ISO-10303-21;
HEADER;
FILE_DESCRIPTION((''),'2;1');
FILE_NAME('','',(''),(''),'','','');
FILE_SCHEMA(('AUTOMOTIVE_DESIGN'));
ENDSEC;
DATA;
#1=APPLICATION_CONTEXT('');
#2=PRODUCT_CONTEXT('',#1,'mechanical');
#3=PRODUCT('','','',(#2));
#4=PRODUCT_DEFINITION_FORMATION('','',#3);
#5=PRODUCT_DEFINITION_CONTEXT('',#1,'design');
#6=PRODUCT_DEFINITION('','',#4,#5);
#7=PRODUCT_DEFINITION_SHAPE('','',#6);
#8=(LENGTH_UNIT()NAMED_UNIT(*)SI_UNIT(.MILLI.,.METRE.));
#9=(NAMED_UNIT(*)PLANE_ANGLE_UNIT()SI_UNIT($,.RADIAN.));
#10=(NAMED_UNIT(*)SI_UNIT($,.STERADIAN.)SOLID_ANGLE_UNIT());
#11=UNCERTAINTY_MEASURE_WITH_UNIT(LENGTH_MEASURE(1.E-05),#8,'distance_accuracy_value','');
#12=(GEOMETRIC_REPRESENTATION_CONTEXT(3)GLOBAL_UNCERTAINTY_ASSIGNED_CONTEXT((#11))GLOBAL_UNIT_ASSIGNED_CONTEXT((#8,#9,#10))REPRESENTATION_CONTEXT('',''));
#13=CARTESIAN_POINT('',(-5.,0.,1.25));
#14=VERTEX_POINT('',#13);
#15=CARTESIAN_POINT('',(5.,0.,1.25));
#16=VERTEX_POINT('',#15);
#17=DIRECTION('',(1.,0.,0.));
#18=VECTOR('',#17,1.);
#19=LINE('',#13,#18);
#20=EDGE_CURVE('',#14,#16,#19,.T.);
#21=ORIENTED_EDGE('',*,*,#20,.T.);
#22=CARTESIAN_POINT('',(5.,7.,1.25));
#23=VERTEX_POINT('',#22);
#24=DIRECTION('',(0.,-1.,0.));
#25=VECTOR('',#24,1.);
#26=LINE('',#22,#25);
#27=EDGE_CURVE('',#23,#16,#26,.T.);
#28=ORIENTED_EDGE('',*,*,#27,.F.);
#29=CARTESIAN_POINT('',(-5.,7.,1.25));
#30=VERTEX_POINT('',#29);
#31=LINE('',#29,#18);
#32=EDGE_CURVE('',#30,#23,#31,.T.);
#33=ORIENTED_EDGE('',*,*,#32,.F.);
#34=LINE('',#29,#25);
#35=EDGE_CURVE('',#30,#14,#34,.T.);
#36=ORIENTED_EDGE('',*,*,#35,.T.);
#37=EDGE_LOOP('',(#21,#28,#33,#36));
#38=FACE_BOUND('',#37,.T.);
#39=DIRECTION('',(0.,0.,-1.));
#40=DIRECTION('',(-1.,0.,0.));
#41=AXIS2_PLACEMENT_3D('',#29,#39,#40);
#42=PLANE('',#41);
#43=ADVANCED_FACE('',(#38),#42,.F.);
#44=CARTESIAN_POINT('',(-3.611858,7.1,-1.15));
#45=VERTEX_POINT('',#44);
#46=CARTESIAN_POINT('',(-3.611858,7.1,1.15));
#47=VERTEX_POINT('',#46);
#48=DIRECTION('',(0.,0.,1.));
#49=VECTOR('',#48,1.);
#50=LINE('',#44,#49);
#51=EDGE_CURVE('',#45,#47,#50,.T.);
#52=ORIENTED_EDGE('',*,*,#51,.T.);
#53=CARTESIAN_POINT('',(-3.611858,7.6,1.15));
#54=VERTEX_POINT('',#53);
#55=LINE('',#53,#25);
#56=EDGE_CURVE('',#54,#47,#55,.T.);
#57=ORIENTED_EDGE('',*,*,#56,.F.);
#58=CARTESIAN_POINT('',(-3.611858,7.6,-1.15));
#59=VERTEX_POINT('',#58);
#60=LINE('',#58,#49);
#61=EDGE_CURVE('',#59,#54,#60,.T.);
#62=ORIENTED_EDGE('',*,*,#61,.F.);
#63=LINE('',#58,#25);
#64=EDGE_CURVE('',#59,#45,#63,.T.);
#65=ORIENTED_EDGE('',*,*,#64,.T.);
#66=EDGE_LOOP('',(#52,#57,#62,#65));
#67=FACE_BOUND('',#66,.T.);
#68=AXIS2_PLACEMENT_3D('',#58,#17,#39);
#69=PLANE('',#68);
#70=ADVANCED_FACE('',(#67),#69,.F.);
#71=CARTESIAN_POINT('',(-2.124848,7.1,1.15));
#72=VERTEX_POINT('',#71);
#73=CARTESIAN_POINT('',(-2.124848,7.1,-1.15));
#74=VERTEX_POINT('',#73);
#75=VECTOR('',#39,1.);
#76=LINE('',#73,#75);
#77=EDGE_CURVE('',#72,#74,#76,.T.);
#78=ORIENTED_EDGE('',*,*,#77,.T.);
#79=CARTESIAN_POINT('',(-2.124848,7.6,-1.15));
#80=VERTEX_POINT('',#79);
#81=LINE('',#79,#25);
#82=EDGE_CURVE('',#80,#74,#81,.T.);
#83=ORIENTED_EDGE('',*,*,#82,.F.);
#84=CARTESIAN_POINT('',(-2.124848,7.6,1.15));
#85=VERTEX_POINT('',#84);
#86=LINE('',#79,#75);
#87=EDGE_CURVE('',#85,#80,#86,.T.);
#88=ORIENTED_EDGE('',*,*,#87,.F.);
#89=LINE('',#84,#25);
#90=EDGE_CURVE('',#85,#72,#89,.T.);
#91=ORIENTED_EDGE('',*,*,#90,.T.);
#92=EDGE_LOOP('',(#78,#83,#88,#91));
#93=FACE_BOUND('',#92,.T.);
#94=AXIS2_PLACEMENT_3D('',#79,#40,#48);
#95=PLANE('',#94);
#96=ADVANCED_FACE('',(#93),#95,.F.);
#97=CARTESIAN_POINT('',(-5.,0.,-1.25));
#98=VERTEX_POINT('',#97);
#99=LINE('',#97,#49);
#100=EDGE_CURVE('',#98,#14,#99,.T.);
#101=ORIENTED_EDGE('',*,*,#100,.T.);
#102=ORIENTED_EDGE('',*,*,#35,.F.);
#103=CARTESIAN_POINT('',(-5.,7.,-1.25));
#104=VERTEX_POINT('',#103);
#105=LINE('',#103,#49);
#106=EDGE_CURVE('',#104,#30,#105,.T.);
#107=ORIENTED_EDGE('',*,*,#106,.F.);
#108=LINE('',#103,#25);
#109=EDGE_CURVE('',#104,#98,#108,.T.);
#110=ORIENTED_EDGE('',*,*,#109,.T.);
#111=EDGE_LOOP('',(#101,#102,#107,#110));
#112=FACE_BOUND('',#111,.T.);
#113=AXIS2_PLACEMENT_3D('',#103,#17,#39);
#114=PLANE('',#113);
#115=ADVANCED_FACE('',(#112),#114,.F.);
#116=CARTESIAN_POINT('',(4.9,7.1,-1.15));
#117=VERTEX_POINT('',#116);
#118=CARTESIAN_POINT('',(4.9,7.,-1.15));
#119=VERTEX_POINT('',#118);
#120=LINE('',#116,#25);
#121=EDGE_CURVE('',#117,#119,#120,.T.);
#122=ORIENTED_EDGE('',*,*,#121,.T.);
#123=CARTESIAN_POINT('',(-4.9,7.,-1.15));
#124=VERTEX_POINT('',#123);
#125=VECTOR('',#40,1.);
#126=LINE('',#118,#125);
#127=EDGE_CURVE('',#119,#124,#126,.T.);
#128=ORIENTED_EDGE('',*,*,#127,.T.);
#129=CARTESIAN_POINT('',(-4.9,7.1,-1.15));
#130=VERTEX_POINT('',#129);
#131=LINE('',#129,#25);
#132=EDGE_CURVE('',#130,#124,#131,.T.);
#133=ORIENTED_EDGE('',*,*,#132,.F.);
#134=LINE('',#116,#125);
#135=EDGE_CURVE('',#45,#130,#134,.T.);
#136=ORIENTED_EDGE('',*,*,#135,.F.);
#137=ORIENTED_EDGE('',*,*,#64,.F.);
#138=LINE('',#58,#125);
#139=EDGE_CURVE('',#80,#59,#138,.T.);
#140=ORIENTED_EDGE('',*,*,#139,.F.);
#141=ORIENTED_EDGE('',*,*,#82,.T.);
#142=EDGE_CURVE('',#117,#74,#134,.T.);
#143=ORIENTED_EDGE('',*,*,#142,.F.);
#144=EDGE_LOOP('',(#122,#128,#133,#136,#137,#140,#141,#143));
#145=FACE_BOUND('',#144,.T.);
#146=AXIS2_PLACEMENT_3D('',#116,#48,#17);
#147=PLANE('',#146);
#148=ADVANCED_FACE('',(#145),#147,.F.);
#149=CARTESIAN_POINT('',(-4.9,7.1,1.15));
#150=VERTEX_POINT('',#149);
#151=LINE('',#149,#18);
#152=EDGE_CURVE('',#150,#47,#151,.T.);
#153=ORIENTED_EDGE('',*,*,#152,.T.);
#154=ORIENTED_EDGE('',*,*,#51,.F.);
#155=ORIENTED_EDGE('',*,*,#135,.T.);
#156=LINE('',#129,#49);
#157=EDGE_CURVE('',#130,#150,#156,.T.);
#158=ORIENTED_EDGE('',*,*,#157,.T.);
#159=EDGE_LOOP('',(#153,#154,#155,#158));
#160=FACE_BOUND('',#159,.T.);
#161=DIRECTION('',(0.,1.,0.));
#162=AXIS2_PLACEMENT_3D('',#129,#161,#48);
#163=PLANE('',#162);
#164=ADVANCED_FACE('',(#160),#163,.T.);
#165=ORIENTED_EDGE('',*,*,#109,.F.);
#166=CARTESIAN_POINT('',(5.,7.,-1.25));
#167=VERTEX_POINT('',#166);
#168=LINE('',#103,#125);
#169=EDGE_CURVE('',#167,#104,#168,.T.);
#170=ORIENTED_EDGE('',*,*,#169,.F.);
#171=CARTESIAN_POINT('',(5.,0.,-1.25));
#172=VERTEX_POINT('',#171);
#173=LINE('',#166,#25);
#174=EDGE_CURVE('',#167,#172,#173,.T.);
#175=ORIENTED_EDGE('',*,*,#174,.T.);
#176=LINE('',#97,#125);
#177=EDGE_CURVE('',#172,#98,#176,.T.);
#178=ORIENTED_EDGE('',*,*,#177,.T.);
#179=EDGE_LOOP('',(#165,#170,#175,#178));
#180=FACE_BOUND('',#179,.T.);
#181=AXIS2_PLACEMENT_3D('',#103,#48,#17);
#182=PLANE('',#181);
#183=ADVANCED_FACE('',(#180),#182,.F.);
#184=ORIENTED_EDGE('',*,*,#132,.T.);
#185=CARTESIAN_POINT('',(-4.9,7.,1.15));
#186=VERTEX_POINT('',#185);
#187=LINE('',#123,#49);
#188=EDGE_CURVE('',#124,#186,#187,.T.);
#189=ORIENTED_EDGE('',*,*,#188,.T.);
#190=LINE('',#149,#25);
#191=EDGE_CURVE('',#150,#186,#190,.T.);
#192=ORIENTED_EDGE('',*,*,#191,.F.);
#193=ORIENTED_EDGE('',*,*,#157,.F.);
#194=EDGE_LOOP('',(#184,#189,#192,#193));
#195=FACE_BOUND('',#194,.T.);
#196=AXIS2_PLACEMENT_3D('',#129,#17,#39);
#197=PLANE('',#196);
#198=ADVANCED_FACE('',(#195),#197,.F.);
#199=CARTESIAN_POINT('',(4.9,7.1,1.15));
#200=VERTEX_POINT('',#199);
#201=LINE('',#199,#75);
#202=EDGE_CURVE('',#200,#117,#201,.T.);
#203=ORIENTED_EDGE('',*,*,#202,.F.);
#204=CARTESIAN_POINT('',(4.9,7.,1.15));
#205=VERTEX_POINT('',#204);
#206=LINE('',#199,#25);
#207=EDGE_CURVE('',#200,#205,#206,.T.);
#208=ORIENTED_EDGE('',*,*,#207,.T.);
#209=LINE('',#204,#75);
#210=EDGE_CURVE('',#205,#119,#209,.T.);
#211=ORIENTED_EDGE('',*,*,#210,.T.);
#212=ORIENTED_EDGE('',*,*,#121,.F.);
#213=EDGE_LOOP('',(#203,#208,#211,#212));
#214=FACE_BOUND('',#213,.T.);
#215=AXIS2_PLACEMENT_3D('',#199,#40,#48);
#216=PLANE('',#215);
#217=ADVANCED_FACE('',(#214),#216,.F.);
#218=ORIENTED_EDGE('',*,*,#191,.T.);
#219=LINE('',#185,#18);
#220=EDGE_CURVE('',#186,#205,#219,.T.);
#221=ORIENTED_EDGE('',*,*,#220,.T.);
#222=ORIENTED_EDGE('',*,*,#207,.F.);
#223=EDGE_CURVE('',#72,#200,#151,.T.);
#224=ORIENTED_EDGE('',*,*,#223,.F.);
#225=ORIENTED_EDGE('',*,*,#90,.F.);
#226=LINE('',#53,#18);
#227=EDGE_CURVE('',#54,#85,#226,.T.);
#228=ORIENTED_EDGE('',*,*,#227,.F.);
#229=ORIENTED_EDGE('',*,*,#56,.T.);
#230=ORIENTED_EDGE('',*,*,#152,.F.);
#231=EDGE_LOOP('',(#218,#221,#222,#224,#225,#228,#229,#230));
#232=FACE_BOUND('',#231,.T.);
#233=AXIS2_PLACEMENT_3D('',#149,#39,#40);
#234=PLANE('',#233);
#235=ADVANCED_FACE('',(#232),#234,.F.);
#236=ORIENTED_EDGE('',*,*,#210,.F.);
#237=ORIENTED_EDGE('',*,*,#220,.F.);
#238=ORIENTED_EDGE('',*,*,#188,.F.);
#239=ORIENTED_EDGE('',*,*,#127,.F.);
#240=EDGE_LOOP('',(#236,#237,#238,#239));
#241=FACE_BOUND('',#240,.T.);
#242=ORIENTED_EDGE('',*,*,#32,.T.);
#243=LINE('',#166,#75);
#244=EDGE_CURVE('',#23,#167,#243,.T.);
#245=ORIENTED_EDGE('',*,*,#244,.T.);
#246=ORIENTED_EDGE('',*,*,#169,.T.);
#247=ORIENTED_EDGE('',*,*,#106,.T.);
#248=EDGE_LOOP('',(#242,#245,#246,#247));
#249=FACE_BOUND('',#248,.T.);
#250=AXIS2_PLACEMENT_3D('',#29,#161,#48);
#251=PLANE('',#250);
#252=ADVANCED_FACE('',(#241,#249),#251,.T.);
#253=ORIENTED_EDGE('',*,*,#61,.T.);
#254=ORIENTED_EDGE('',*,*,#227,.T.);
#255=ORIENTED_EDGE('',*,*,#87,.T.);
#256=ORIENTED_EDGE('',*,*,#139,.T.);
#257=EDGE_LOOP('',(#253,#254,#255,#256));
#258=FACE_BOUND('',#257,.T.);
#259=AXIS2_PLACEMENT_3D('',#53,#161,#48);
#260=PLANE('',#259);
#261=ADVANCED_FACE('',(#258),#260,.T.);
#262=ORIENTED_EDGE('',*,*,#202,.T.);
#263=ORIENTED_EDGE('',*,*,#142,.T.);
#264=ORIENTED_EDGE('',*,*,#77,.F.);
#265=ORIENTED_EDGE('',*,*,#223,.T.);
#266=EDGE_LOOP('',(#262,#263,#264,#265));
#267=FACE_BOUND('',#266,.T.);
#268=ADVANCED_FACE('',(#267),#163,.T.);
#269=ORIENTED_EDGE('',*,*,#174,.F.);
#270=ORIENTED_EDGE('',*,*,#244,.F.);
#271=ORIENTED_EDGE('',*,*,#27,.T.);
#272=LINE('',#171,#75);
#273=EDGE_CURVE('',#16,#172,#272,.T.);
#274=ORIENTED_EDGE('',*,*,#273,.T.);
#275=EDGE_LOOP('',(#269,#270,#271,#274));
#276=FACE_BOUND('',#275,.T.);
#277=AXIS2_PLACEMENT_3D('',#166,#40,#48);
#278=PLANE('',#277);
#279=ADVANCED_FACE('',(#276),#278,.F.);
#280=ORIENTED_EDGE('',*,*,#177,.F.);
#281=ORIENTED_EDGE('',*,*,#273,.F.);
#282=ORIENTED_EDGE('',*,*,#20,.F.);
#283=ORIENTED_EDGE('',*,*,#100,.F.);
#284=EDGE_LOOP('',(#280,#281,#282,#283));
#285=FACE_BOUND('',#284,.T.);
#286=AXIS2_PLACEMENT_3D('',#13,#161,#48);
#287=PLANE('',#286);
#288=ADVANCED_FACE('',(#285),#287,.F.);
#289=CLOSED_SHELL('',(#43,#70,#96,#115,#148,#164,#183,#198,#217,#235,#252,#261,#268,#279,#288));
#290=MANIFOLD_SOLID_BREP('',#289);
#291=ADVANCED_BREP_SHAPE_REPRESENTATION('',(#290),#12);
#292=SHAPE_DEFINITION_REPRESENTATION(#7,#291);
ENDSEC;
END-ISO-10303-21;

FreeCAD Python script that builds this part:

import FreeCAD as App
import Part
import Sketcher
from FreeCAD import Vector
Q = App.Units.Quantity


def add_polygon(sketch, points):
    """Adds a closed chain of lines whose ends are joined by coincident constraints."""
    first, n = sketch.GeometryCount, len(points)
    for a, b in zip(points, points[1:] + points[:1]):
        sketch.addGeometry(Part.LineSegment(App.Vector(*a, 0), App.Vector(*b, 0)), False)
    for i in range(n):
        sketch.addConstraint(Sketcher.Constraint("Coincident", first + i, 2, first + (i + 1) % n, 1))

doc = App.newDocument("Part")
body = doc.addObject("PartDesign::Body", "Body")

# Sketch on XZ plane
sketch1 = body.newObject("Sketcher::SketchObject", "Sketch")
sketch1.AttachmentSupport = (doc.getObject("XZ_Plane"), [""])
sketch1.MapMode = "FlatFace"
add_polygon(sketch1, [(-5, -1.2), (-5, 1.2), (5, 1.2), (5, -1.2)])  # lines 0-3
sketch1.addConstraint([
    Sketcher.Constraint("Vertical", 0),
    Sketcher.Constraint("Horizontal", 1),
    Sketcher.Constraint("Vertical", 2),
    Sketcher.Constraint("Horizontal", 3),
    Sketcher.Constraint("Symmetric", 0, 2, 2, 2, -1, 1),
    Sketcher.Constraint("DistanceX", 1, 1, 1, 2, Q("10 mm")),
    Sketcher.Constraint("DistanceY", 0, 1, 0, 2, Q("2.5 mm")),
])
pad1 = body.newObject("PartDesign::Pad", "Pad")
pad1.Profile = sketch1
pad1.Length = 7
pad1.Reversed = True

# Sketch on XZ plane
sketch2 = body.newObject("Sketcher::SketchObject", "Sketch001")
sketch2.AttachmentSupport = (doc.getObject("XZ_Plane"), [""])
sketch2.MapMode = "FlatFace"
sketch2.AttachmentOffset = App.Placement(Vector(0, 0, -7), App.Rotation())
add_polygon(sketch2, [(-4.9, -1.1), (-4.9, 1.1), (4.9, 1.1), (4.9, -1.1)])  # lines 0-3
sketch2.addConstraint([
    Sketcher.Constraint("Vertical", 0),
    Sketcher.Constraint("Horizontal", 1),
    Sketcher.Constraint("Vertical", 2),
    Sketcher.Constraint("Horizontal", 3),
    Sketcher.Constraint("Symmetric", 0, 2, 2, 2, -1, 1),
    Sketcher.Constraint("DistanceX", 1, 1, 1, 2, Q("9.8 mm")),
    Sketcher.Constraint("DistanceY", 0, 1, 0, 2, Q("2.3 mm")),
])
pad2 = body.newObject("PartDesign::Pad", "Pad001")
pad2.Profile = sketch2
pad2.Length = 0.1
pad2.Reversed = True

# Sketch on XZ plane
sketch3 = body.newObject("Sketcher::SketchObject", "Sketch002")
sketch3.AttachmentSupport = (doc.getObject("XZ_Plane"), [""])
sketch3.MapMode = "FlatFace"
sketch3.AttachmentOffset = App.Placement(Vector(0, 0, -7.1), App.Rotation())
add_polygon(sketch3, [(-3.6, -1.1), (-3.6, 1.1), (-2.1, 1.1), (-2.1, -1.1)])  # lines 0-3
sketch3.addConstraint([
    Sketcher.Constraint("Vertical", 0),
    Sketcher.Constraint("Horizontal", 1),
    Sketcher.Constraint("Vertical", 2),
    Sketcher.Constraint("Horizontal", 3),
    Sketcher.Constraint("DistanceY", 0, 1, 0, 2, Q("2.3 mm")),
    Sketcher.Constraint("DistanceY", -1, 1, 0, 2, Q("1.15 mm")),
    Sketcher.Constraint("DistanceX", 1, 1, 1, 2, Q("1.48701 mm")),
    Sketcher.Constraint("DistanceX", 0, 2, -1, 1, Q("3.611858 mm")),
])
pad3 = body.newObject("PartDesign::Pad", "Pad002")
pad3.Profile = sketch3
pad3.Length = 0.5
pad3.Reversed = True

doc.recompute()
